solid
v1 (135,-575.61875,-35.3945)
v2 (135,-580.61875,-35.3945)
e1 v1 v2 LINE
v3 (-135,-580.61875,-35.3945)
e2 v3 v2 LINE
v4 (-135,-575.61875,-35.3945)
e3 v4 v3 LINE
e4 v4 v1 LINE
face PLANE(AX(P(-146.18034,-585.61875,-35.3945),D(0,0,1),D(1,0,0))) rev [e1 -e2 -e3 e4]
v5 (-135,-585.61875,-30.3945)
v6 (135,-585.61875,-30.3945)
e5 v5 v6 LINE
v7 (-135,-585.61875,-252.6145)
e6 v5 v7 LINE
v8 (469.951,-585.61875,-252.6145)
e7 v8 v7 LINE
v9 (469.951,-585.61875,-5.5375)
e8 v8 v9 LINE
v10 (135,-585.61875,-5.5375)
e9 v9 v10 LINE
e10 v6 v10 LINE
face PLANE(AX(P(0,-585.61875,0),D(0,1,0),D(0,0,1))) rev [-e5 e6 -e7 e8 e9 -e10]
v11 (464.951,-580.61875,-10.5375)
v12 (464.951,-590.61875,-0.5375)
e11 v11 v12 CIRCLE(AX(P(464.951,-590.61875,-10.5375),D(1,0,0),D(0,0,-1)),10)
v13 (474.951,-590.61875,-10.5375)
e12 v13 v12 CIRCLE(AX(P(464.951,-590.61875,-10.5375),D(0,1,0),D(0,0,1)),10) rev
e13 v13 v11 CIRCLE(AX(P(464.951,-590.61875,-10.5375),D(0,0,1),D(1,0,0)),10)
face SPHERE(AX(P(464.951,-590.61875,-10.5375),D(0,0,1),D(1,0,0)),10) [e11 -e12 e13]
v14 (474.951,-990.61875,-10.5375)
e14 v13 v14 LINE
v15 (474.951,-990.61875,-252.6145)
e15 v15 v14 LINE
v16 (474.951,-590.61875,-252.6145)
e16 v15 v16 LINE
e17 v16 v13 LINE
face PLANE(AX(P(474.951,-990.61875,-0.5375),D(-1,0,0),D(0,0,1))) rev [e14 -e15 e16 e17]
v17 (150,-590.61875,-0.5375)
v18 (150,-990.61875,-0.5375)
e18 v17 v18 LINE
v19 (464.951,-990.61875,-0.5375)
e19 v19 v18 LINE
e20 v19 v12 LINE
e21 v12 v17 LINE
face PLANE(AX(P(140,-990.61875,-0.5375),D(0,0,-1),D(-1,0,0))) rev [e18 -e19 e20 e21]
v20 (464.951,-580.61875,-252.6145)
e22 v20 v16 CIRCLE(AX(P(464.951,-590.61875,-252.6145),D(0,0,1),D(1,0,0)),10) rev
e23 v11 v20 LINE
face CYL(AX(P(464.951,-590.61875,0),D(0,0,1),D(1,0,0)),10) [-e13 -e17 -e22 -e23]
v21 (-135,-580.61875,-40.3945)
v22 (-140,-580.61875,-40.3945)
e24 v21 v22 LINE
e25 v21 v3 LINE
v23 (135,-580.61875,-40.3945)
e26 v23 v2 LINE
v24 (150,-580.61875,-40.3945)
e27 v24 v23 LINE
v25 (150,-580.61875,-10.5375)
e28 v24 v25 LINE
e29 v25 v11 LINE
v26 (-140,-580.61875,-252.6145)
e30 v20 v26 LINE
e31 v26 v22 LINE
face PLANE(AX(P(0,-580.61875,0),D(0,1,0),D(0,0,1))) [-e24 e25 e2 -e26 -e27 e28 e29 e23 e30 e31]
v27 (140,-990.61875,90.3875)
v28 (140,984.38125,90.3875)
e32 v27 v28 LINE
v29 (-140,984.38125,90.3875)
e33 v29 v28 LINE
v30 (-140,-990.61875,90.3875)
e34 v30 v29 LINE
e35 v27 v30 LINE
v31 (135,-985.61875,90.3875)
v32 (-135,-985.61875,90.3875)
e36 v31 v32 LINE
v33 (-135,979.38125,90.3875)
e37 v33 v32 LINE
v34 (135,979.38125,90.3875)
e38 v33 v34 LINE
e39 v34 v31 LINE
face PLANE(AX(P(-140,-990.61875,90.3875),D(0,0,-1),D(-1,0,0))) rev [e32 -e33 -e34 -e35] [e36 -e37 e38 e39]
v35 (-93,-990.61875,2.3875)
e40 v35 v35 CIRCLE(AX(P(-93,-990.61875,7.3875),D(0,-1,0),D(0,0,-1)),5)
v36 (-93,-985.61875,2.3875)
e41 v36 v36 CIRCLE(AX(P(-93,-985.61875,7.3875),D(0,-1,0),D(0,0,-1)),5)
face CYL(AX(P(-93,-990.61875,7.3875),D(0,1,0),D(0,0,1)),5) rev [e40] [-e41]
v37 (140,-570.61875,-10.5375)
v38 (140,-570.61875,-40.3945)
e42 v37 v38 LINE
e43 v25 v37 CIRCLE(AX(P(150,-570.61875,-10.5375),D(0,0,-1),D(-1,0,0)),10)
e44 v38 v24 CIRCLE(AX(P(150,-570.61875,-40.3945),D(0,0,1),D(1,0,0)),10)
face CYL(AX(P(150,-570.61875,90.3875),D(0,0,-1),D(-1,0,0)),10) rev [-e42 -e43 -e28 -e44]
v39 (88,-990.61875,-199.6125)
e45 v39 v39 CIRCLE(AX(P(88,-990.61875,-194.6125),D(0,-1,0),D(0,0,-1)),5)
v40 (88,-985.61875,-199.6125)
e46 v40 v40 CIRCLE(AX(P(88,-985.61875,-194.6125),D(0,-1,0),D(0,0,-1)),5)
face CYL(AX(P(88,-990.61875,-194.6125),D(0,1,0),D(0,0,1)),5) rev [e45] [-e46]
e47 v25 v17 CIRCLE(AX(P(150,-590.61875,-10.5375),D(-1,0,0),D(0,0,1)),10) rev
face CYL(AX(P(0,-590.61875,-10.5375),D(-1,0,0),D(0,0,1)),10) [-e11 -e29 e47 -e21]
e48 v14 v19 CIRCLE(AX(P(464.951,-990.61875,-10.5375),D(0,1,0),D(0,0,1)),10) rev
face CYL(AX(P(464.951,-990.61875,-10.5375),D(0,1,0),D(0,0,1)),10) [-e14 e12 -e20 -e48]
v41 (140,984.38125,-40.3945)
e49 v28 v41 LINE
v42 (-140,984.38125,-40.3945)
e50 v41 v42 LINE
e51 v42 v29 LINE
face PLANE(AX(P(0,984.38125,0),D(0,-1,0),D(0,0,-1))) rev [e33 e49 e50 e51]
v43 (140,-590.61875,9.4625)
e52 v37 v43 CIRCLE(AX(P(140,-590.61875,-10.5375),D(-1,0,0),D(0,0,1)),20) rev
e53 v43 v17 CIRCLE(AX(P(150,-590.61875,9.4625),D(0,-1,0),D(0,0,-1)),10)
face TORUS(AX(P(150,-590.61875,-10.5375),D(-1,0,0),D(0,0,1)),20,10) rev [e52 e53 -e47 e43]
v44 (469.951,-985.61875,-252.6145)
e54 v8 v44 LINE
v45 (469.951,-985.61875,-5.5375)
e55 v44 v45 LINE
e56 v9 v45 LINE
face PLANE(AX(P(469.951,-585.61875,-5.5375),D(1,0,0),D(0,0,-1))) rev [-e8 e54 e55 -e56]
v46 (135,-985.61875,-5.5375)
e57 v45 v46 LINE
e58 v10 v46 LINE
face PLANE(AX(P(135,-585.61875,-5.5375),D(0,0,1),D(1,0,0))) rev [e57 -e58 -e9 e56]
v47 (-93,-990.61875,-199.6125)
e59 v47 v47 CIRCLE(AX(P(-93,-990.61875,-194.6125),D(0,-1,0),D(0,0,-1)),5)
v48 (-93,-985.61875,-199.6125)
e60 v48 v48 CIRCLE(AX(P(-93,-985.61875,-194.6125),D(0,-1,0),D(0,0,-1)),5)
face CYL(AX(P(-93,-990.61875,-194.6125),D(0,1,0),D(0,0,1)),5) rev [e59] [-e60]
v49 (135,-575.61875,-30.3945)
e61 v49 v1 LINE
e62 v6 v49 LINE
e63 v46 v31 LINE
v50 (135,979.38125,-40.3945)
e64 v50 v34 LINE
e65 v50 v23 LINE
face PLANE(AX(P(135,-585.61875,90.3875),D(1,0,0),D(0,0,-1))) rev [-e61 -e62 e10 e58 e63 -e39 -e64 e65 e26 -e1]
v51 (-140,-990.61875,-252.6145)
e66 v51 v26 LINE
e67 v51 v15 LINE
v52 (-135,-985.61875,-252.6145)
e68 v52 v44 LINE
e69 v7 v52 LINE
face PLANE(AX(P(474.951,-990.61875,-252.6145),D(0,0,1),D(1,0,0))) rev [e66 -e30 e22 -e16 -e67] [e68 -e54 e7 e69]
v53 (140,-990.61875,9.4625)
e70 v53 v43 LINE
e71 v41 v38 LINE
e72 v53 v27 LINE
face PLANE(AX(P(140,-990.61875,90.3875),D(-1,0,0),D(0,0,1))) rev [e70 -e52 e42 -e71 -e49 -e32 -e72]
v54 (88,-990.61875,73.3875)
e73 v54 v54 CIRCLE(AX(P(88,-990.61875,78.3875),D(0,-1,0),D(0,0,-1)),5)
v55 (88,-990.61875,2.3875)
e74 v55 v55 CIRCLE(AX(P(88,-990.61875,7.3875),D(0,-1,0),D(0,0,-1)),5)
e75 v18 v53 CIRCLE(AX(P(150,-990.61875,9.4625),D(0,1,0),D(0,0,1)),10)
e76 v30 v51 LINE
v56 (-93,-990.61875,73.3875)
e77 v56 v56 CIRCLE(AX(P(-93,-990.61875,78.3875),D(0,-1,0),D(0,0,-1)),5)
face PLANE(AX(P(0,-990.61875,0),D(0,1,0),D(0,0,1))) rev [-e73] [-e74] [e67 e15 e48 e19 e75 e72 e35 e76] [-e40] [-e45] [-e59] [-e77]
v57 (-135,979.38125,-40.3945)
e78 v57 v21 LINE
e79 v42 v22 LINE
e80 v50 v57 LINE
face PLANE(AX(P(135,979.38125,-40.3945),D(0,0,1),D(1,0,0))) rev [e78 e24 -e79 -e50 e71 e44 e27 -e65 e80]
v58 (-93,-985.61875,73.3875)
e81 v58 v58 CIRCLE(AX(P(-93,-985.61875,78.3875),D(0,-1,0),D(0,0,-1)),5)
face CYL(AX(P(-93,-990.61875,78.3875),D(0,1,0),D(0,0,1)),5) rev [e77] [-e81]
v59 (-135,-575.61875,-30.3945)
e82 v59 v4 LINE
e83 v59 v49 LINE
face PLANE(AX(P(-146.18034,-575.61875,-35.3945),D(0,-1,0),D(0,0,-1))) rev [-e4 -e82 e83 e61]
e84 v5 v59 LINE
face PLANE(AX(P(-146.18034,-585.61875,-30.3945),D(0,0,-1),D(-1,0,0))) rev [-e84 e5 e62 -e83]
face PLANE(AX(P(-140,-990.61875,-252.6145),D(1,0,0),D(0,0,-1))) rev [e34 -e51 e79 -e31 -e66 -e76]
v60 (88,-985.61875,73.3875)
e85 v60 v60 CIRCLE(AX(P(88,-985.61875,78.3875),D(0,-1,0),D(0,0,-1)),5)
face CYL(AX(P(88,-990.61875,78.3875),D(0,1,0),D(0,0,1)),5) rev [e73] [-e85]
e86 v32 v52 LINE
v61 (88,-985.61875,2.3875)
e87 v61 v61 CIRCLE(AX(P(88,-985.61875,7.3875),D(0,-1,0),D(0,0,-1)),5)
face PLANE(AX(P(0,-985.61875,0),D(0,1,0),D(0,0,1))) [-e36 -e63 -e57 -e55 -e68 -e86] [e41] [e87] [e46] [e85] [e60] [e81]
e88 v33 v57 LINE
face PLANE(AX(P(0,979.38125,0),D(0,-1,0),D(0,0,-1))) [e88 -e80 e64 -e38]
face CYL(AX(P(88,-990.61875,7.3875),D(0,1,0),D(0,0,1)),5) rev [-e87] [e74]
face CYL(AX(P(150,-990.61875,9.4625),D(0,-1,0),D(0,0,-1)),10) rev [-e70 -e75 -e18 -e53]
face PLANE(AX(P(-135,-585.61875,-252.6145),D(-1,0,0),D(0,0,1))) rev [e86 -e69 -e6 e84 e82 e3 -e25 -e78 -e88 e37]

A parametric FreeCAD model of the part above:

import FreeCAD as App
import Part
import Sketcher
Q = App.Units.Quantity


def edges_at(feature, points):
    """Names of the edges that pass closest to the given points."""
    edges = feature.Shape.Edges
    near = lambda p: min(range(len(edges)), key=lambda i: edges[i].distToShape(Part.Vertex(*p))[0])
    return sorted({f"Edge{near(p) + 1}" for p in points})

doc = App.newDocument("Part")
body = doc.addObject("PartDesign::Body", "Body")

# Sketch on XZ plane
sketch1 = doc.addObject("Sketcher::SketchObject", "Sketch")
body.addObject(sketch1)
sketch1.AttachmentSupport = (doc.XZ_Plane, [""])
sketch1.MapMode = "FlatFace"
sketch1.AttachmentOffset = App.Placement(App.Vector(0, 0, 985.61875), App.Rotation())
sketch1.addGeometry([
    Part.LineSegment(App.Vector(140, 90, 0), App.Vector(-140, 90, 0)),  # 0
    Part.LineSegment(App.Vector(-140, 90, 0), App.Vector(-140, -253, 0)),  # 1
    Part.LineSegment(App.Vector(-140, -253, 0), App.Vector(475, -253, 0)),  # 2
    Part.LineSegment(App.Vector(475, -253, 0), App.Vector(475, -1, 0)),  # 3
    Part.LineSegment(App.Vector(475, -1, 0), App.Vector(140, -1, 0)),  # 4
    Part.LineSegment(App.Vector(140, -1, 0), App.Vector(140, 90, 0)),  # 5
    Part.Circle(App.Vector(88, -195, 0), App.Vector(0, 0, 1), 5),  # 6
    Part.Circle(App.Vector(-93, -195, 0), App.Vector(0, 0, 1), 5),  # 7
    Part.Circle(App.Vector(88, 7, 0), App.Vector(0, 0, 1), 5),  # 8
    Part.Circle(App.Vector(88, 78, 0), App.Vector(0, 0, 1), 5),  # 9
    Part.Circle(App.Vector(-93, 7, 0), App.Vector(0, 0, 1), 5),  # 10
    Part.Circle(App.Vector(-93, 78, 0), App.Vector(0, 0, 1), 5),  # 11
], False)
sketch1.addConstraint([
    Sketcher.Constraint("Coincident", 0, 2, 1, 1),
    Sketcher.Constraint("Coincident", 1, 2, 2, 1),
    Sketcher.Constraint("Coincident", 2, 2, 3, 1),
    Sketcher.Constraint("Coincident", 3, 2, 4, 1),
    Sketcher.Constraint("Coincident", 4, 2, 5, 1),
    Sketcher.Constraint("Coincident", 5, 2, 0, 1),
    Sketcher.Constraint("Horizontal", 0),
    Sketcher.Constraint("Vertical", 1),
    Sketcher.Constraint("Horizontal", 2),
    Sketcher.Constraint("Vertical", 3),
    Sketcher.Constraint("Horizontal", 4),
    Sketcher.Constraint("Vertical", 5),
    Sketcher.Constraint("Equal", 6, 7),
    Sketcher.Constraint("Equal", 7, 8),
    Sketcher.Constraint("Equal", 8, 9),
    Sketcher.Constraint("Equal", 9, 10),
    Sketcher.Constraint("Equal", 10, 11),
    Sketcher.Constraint("Horizontal", 6, 3, 7, 3),
    Sketcher.Constraint("Horizontal", 8, 3, 10, 3),
    Sketcher.Constraint("Horizontal", 9, 3, 11, 3),
    Sketcher.Constraint("Vertical", 6, 3, 8, 3),
    Sketcher.Constraint("Vertical", 8, 3, 9, 3),
    Sketcher.Constraint("Vertical", 7, 3, 10, 3),
    Sketcher.Constraint("Vertical", 10, 3, 11, 3),
    Sketcher.Constraint("Diameter", 6, Q("10 mm")),
    Sketcher.Constraint("DistanceX", 0, 2, 0, 1, Q("280 mm")),
    Sketcher.Constraint("DistanceX", -1, 1, 6, 3, Q("88 mm")),
    Sketcher.Constraint("DistanceX", 7, 3, -1, 1, Q("93 mm")),
    Sketcher.Constraint("DistanceX", 0, 2, -1, 1, Q("140 mm")),
    Sketcher.Constraint("DistanceY", 6, 3, 8, 3, Q("202 mm")),
    Sketcher.Constraint("DistanceY", 8, 3, 9, 3, Q("71 mm")),
    Sketcher.Constraint("DistanceY", 11, 3, 0, 2, Q("12 mm")),
    Sketcher.Constraint("DistanceX", 2, 1, 2, 2, Q("614.951 mm")),
    Sketcher.Constraint("DistanceY", 1, 2, 1, 1, Q("343.002 mm")),
    Sketcher.Constraint("DistanceY", 3, 1, 3, 2, Q("252.077 mm")),
    Sketcher.Constraint("DistanceY", 6, 3, -1, 1, Q("194.6125 mm")),
])
pad1 = doc.addObject("PartDesign::Pad", "Pad")
body.addObject(pad1)
pad1.Profile = sketch1
pad1.Length = 5

# Sketch on XZ plane
sketch2 = doc.addObject("Sketcher::SketchObject", "Sketch001")
body.addObject(sketch2)
sketch2.AttachmentSupport = (doc.XZ_Plane, [""])
sketch2.MapMode = "FlatFace"
sketch2.AttachmentOffset = App.Placement(App.Vector(0, 0, 985.61875), App.Rotation())
sketch2.addGeometry([
    Part.LineSegment(App.Vector(-140, -253, 0), App.Vector(-140, 90, 0)),  # 0
    Part.LineSegment(App.Vector(-140, 90, 0), App.Vector(-135, 90, 0)),  # 1
    Part.LineSegment(App.Vector(-135, 90, 0), App.Vector(-135, -253, 0)),  # 2
    Part.LineSegment(App.Vector(-135, -253, 0), App.Vector(-140, -253, 0)),  # 3
    Part.LineSegment(App.Vector(135, -6, 0), App.Vector(135, 90, 0)),  # 4
    Part.LineSegment(App.Vector(135, 90, 0), App.Vector(140, 90, 0)),  # 5
    Part.LineSegment(App.Vector(140, 90, 0), App.Vector(140, -1, 0)),  # 6
    Part.LineSegment(App.Vector(140, -1, 0), App.Vector(475, -1, 0)),  # 7
    Part.LineSegment(App.Vector(475, -1, 0), App.Vector(475, -253, 0)),  # 8
    Part.LineSegment(App.Vector(475, -253, 0), App.Vector(470, -253, 0)),  # 9
    Part.LineSegment(App.Vector(470, -253, 0), App.Vector(470, -6, 0)),  # 10
    Part.LineSegment(App.Vector(470, -6, 0), App.Vector(135, -6, 0)),  # 11
], False)
sketch2.addConstraint([
    Sketcher.Constraint("Coincident", 0, 2, 1, 1),
    Sketcher.Constraint("Coincident", 1, 2, 2, 1),
    Sketcher.Constraint("Coincident", 2, 2, 3, 1),
    Sketcher.Constraint("Coincident", 3, 2, 0, 1),
    Sketcher.Constraint("Coincident", 4, 2, 5, 1),
    Sketcher.Constraint("Coincident", 5, 2, 6, 1),
    Sketcher.Constraint("Coincident", 6, 2, 7, 1),
    Sketcher.Constraint("Coincident", 7, 2, 8, 1),
    Sketcher.Constraint("Coincident", 8, 2, 9, 1),
    Sketcher.Constraint("Coincident", 9, 2, 10, 1),
    Sketcher.Constraint("Coincident", 10, 2, 11, 1),
    Sketcher.Constraint("Coincident", 11, 2, 4, 1),
    Sketcher.Constraint("Vertical", 0),
    Sketcher.Constraint("Horizontal", 1),
    Sketcher.Constraint("Vertical", 2),
    Sketcher.Constraint("Horizontal", 3),
    Sketcher.Constraint("Vertical", 4),
    Sketcher.Constraint("Horizontal", 5),
    Sketcher.Constraint("Vertical", 6),
    Sketcher.Constraint("Horizontal", 7),
    Sketcher.Constraint("Vertical", 8),
    Sketcher.Constraint("Horizontal", 9),
    Sketcher.Constraint("Vertical", 10),
    Sketcher.Constraint("Horizontal", 11),
    Sketcher.Constraint("Symmetric", 1, 2, 4, 2, -2),
    Sketcher.Constraint("Horizontal", 3, 2, 8, 2),
    Sketcher.Constraint("Equal", 3, 5),
    Sketcher.Constraint("Equal", 5, 9),
    Sketcher.Constraint("DistanceX", 1, 1, 1, 2, Q("5 mm")),
    Sketcher.Constraint("DistanceX", 0, 2, -1, 1, Q("140 mm")),
    Sketcher.Constraint("DistanceY", 10, 2, 7, 2, Q("5 mm")),
    Sketcher.Constraint("DistanceX", 7, 1, 7, 2, Q("334.951 mm")),
    Sketcher.Constraint("DistanceY", 0, 1, 0, 2, Q("343.002 mm")),
    Sketcher.Constraint("DistanceY", 4, 1, 4, 2, Q("95.925 mm")),
    Sketcher.Constraint("DistanceY", -1, 1, 0, 2, Q("90.3875 mm")),
])
pad2 = doc.addObject("PartDesign::Pad", "Pad001")
body.addObject(pad2)
pad2.Profile = sketch2
pad2.Length = 400
pad2.Reversed = True

# Sketch on XZ plane
sketch3 = doc.addObject("Sketcher::SketchObject", "Sketch002")
body.addObject(sketch3)
sketch3.AttachmentSupport = (doc.XZ_Plane, [""])
sketch3.MapMode = "FlatFace"
sketch3.AttachmentOffset = App.Placement(App.Vector(0, 0, 585.61875), App.Rotation())
sketch3.addGeometry([
    Part.LineSegment(App.Vector(135, -35, 0), App.Vector(135, 90, 0)),  # 0
    Part.LineSegment(App.Vector(135, 90, 0), App.Vector(140, 90, 0)),  # 1
    Part.LineSegment(App.Vector(140, 90, 0), App.Vector(140, -1, 0)),  # 2
    Part.LineSegment(App.Vector(140, -1, 0), App.Vector(475, -1, 0)),  # 3
    Part.LineSegment(App.Vector(475, -1, 0), App.Vector(475, -253, 0)),  # 4
    Part.LineSegment(App.Vector(475, -253, 0), App.Vector(-140, -253, 0)),  # 5
    Part.LineSegment(App.Vector(-140, -253, 0), App.Vector(-140, 90, 0)),  # 6
    Part.LineSegment(App.Vector(-140, 90, 0), App.Vector(-135, 90, 0)),  # 7
    Part.LineSegment(App.Vector(-135, 90, 0), App.Vector(-135, -35, 0)),  # 8
    Part.LineSegment(App.Vector(-135, -35, 0), App.Vector(135, -35, 0)),  # 9
], False)
sketch3.addConstraint([
    Sketcher.Constraint("Coincident", 0, 2, 1, 1),
    Sketcher.Constraint("Coincident", 1, 2, 2, 1),
    Sketcher.Constraint("Coincident", 2, 2, 3, 1),
    Sketcher.Constraint("Coincident", 3, 2, 4, 1),
    Sketcher.Constraint("Coincident", 4, 2, 5, 1),
    Sketcher.Constraint("Coincident", 5, 2, 6, 1),
    Sketcher.Constraint("Coincident", 6, 2, 7, 1),
    Sketcher.Constraint("Coincident", 7, 2, 8, 1),
    Sketcher.Constraint("Coincident", 8, 2, 9, 1),
    Sketcher.Constraint("Coincident", 9, 2, 0, 1),
    Sketcher.Constraint("Vertical", 0),
    Sketcher.Constraint("Horizontal", 1),
    Sketcher.Constraint("Vertical", 2),
    Sketcher.Constraint("Horizontal", 3),
    Sketcher.Constraint("Vertical", 4),
    Sketcher.Constraint("Horizontal", 5),
    Sketcher.Constraint("Vertical", 6),
    Sketcher.Constraint("Horizontal", 7),
    Sketcher.Constraint("Vertical", 8),
    Sketcher.Constraint("Horizontal", 9),
    Sketcher.Constraint("Symmetric", 1, 2, 6, 2, -2),
    Sketcher.Constraint("Equal", 1, 7),
    Sketcher.Constraint("DistanceX", 1, 1, 1, 2, Q("5 mm")),
    Sketcher.Constraint("DistanceX", 9, 1, 9, 2, Q("270 mm")),
    Sketcher.Constraint("DistanceX", 3, 1, 3, 2, Q("334.951 mm")),
    Sketcher.Constraint("DistanceY", 0, 1, 0, 2, Q("125.782 mm")),
    Sketcher.Constraint("DistanceY", 2, 2, 2, 1, Q("90.925 mm")),
    Sketcher.Constraint("DistanceY", 4, 2, 4, 1, Q("252.077 mm")),
    Sketcher.Constraint("DistanceY", -1, 1, 0, 2, Q("90.3875 mm")),
])
pad3 = doc.addObject("PartDesign::Pad", "Pad002")
body.addObject(pad3)
pad3.Profile = sketch3
pad3.Length = 5
pad3.Reversed = True

# Sketch on XZ plane
sketch4 = doc.addObject("Sketcher::SketchObject", "Sketch003")
body.addObject(sketch4)
sketch4.AttachmentSupport = (doc.XZ_Plane, [""])
sketch4.MapMode = "FlatFace"
sketch4.AttachmentOffset = App.Placement(App.Vector(0, 0, 580.61875), App.Rotation())
sketch4.addGeometry([
    Part.LineSegment(App.Vector(135, -40, 0), App.Vector(135, 90, 0)),  # 0
    Part.LineSegment(App.Vector(135, 90, 0), App.Vector(140, 90, 0)),  # 1
    Part.LineSegment(App.Vector(140, 90, 0), App.Vector(140, -40, 0)),  # 2
    Part.LineSegment(App.Vector(140, -40, 0), App.Vector(135, -40, 0)),  # 3
    Part.LineSegment(App.Vector(-140, -40, 0), App.Vector(-140, 90, 0)),  # 4
    Part.LineSegment(App.Vector(-140, 90, 0), App.Vector(-135, 90, 0)),  # 5
    Part.LineSegment(App.Vector(-135, 90, 0), App.Vector(-135, -40, 0)),  # 6
    Part.LineSegment(App.Vector(-135, -40, 0), App.Vector(-140, -40, 0)),  # 7
], False)
sketch4.addConstraint([
    Sketcher.Constraint("Coincident", 0, 2, 1, 1),
    Sketcher.Constraint("Coincident", 1, 2, 2, 1),
    Sketcher.Constraint("Coincident", 2, 2, 3, 1),
    Sketcher.Constraint("Coincident", 3, 2, 0, 1),
    Sketcher.Constraint("Coincident", 4, 2, 5, 1),
    Sketcher.Constraint("Coincident", 5, 2, 6, 1),
    Sketcher.Constraint("Coincident", 6, 2, 7, 1),
    Sketcher.Constraint("Coincident", 7, 2, 4, 1),
    Sketcher.Constraint("Vertical", 0),
    Sketcher.Constraint("Horizontal", 1),
    Sketcher.Constraint("Vertical", 2),
    Sketcher.Constraint("Horizontal", 3),
    Sketcher.Constraint("Vertical", 4),
    Sketcher.Constraint("Horizontal", 5),
    Sketcher.Constraint("Vertical", 6),
    Sketcher.Constraint("Horizontal", 7),
    Sketcher.Constraint("Symmetric", 1, 2, 4, 2, -2),
    Sketcher.Constraint("Symmetric", 3, 2, 6, 2, -2),
    Sketcher.Constraint("DistanceX", 1, 1, 1, 2, Q("5 mm")),
    Sketcher.Constraint("DistanceX", -1, 1, 0, 2, Q("135 mm")),
    Sketcher.Constraint("DistanceY", 0, 1, 0, 2, Q("130.782 mm")),
    Sketcher.Constraint("DistanceY", -1, 1, 0, 2, Q("90.3875 mm")),
])
pad4 = doc.addObject("PartDesign::Pad", "Pad003")
body.addObject(pad4)
pad4.Profile = sketch4
pad4.Length = 1560
pad4.Reversed = True

# Sketch on XZ plane
sketch5 = doc.addObject("Sketcher::SketchObject", "Sketch004")
body.addObject(sketch5)
sketch5.AttachmentSupport = (doc.XZ_Plane, [""])
sketch5.MapMode = "FlatFace"
sketch5.AttachmentOffset = App.Placement(App.Vector(0, 0, -979.38125), App.Rotation())
sketch5.addGeometry([
    Part.LineSegment(App.Vector(-140, -40, 0), App.Vector(-140, 90, 0)),
    Part.LineSegment(App.Vector(-140, 90, 0), App.Vector(140, 90, 0)),
    Part.LineSegment(App.Vector(140, 90, 0), App.Vector(140, -40, 0)),
    Part.LineSegment(App.Vector(140, -40, 0), App.Vector(-140, -40, 0)),
], False)
sketch5.addConstraint([
    Sketcher.Constraint("Coincident", 0, 2, 1, 1),
    Sketcher.Constraint("Coincident", 1, 2, 2, 1),
    Sketcher.Constraint("Coincident", 2, 2, 3, 1),
    Sketcher.Constraint("Coincident", 3, 2, 0, 1),
    Sketcher.Constraint("Vertical", 0),
    Sketcher.Constraint("Horizontal", 1),
    Sketcher.Constraint("Vertical", 2),
    Sketcher.Constraint("Horizontal", 3),
    Sketcher.Constraint("DistanceX", 1, 1, 1, 2, Q("280 mm")),
    Sketcher.Constraint("DistanceX", 0, 2, -1, 1, Q("140 mm")),
    Sketcher.Constraint("DistanceY", 0, 1, 0, 2, Q("130.782 mm")),
    Sketcher.Constraint("DistanceY", -1, 1, 0, 2, Q("90.3875 mm")),
])
pad5 = doc.addObject("PartDesign::Pad", "Pad004")
body.addObject(pad5)
pad5.Profile = sketch5
pad5.Length = 5
pad5.Reversed = True
doc.recompute()

fillet = doc.addObject("PartDesign::Fillet", "Fillet")
body.addObject(fillet)
fillet.Base = (pad5, edges_at(pad5, [
    (140, -580.619, -20.466),
    (140, -785.619, -0.537),
    (474.951, -785.619, -0.537),
    (307.476, -580.619, -0.537),
    (474.951, -580.619, -126.576),
]))
fillet.Radius = 10

# Sketch on YZ plane
sketch6 = doc.addObject("Sketcher::SketchObject", "Sketch005")
body.addObject(sketch6)
sketch6.AttachmentSupport = (doc.YZ_Plane, [""])
sketch6.MapMode = "FlatFace"
sketch6.AttachmentOffset = App.Placement(App.Vector(0, 0, 135), App.Rotation())
sketch6.addGeometry([
    Part.LineSegment(App.Vector(-576, -35, 0), App.Vector(-586, -35, 0)),
    Part.LineSegment(App.Vector(-586, -35, 0), App.Vector(-586, -30, 0)),
    Part.LineSegment(App.Vector(-586, -30, 0), App.Vector(-576, -30, 0)),
    Part.LineSegment(App.Vector(-576, -30, 0), App.Vector(-576, -35, 0)),
], False)
sketch6.addConstraint([
    Sketcher.Constraint("Coincident", 0, 2, 1, 1),
    Sketcher.Constraint("Coincident", 1, 2, 2, 1),
    Sketcher.Constraint("Coincident", 2, 2, 3, 1),
    Sketcher.Constraint("Coincident", 3, 2, 0, 1),
    Sketcher.Constraint("Horizontal", 0),
    Sketcher.Constraint("Vertical", 1),
    Sketcher.Constraint("Horizontal", 2),
    Sketcher.Constraint("Vertical", 3),
    Sketcher.Constraint("DistanceX", 0, 2, 0, 1, Q("10 mm")),
    Sketcher.Constraint("DistanceY", 1, 1, 1, 2, Q("5 mm")),
    Sketcher.Constraint("DistanceY", 0, 2, -1, 1, Q("35.3945 mm")),
    Sketcher.Constraint("DistanceX", 0, 2, -1, 1, Q("585.61875 mm")),
])
pad6 = doc.addObject("PartDesign::Pad", "Pad005")
body.addObject(pad6)
pad6.Profile = sketch6
pad6.Length = 270
pad6.Reversed = True

doc.recompute()
